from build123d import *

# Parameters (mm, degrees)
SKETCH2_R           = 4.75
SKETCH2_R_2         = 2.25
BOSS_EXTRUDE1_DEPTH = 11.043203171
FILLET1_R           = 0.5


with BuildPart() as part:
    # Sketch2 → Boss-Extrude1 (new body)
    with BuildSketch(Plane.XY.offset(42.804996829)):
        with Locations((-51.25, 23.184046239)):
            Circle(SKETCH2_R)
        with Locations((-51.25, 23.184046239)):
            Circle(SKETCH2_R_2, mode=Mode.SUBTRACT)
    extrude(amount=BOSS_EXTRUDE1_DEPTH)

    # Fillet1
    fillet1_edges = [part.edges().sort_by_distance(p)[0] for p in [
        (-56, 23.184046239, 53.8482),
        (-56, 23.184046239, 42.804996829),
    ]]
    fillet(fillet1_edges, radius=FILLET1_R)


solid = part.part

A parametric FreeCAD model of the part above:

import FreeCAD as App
import Part
import Sketcher
from FreeCAD import Vector
Q = App.Units.Quantity


def edges_at(feature, points):
    """Names of the edges that pass closest to the given points."""
    edges = feature.Shape.Edges
    near = lambda p: min(range(len(edges)), key=lambda i: edges[i].distToShape(Part.Vertex(*p))[0])
    return sorted({f"Edge{near(p) + 1}" for p in points})

doc = App.newDocument("Part")
body = doc.addObject("PartDesign::Body", "Body")

# Sketch on XY plane
sketch1 = body.newObject("Sketcher::SketchObject", "Sketch")
sketch1.AttachmentSupport = (doc.getObject("XY_Plane"), [""])
sketch1.MapMode = "FlatFace"
sketch1.AttachmentOffset = App.Placement(Vector(0, 0, 42.804997), App.Rotation())
sketch1.addGeometry(Part.Circle(Vector(-51.2, 23.2, 0), Vector(0, 0, 1), 4.8), False)
sketch1.addGeometry(Part.Circle(Vector(-51.2, 23.2, 0), Vector(0, 0, 1), 2.2), False)
sketch1.addConstraint(Sketcher.Constraint("Coincident", 1, 3, 0, 3))
sketch1.addConstraint(Sketcher.Constraint("Diameter", 0, Q("9.5 mm")))
sketch1.addConstraint(Sketcher.Constraint("Diameter", 1, Q("4.5 mm")))
sketch1.addConstraint(Sketcher.Constraint("DistanceX", 0, 3, -1, 1, Q("51.25 mm")))
sketch1.addConstraint(Sketcher.Constraint("DistanceY", -1, 1, 0, 3, Q("23.184046 mm")))
pad1 = body.newObject("PartDesign::Pad", "Pad")
pad1.Profile = sketch1
pad1.Length = 11.043203
doc.recompute()

fillet = body.newObject("PartDesign::Fillet", "Fillet")
fillet.Base = (pad1, edges_at(pad1, [(-56, 23.184, 53.848), (-56, 23.184, 42.805)]))
fillet.Radius = 0.5

doc.recompute()
